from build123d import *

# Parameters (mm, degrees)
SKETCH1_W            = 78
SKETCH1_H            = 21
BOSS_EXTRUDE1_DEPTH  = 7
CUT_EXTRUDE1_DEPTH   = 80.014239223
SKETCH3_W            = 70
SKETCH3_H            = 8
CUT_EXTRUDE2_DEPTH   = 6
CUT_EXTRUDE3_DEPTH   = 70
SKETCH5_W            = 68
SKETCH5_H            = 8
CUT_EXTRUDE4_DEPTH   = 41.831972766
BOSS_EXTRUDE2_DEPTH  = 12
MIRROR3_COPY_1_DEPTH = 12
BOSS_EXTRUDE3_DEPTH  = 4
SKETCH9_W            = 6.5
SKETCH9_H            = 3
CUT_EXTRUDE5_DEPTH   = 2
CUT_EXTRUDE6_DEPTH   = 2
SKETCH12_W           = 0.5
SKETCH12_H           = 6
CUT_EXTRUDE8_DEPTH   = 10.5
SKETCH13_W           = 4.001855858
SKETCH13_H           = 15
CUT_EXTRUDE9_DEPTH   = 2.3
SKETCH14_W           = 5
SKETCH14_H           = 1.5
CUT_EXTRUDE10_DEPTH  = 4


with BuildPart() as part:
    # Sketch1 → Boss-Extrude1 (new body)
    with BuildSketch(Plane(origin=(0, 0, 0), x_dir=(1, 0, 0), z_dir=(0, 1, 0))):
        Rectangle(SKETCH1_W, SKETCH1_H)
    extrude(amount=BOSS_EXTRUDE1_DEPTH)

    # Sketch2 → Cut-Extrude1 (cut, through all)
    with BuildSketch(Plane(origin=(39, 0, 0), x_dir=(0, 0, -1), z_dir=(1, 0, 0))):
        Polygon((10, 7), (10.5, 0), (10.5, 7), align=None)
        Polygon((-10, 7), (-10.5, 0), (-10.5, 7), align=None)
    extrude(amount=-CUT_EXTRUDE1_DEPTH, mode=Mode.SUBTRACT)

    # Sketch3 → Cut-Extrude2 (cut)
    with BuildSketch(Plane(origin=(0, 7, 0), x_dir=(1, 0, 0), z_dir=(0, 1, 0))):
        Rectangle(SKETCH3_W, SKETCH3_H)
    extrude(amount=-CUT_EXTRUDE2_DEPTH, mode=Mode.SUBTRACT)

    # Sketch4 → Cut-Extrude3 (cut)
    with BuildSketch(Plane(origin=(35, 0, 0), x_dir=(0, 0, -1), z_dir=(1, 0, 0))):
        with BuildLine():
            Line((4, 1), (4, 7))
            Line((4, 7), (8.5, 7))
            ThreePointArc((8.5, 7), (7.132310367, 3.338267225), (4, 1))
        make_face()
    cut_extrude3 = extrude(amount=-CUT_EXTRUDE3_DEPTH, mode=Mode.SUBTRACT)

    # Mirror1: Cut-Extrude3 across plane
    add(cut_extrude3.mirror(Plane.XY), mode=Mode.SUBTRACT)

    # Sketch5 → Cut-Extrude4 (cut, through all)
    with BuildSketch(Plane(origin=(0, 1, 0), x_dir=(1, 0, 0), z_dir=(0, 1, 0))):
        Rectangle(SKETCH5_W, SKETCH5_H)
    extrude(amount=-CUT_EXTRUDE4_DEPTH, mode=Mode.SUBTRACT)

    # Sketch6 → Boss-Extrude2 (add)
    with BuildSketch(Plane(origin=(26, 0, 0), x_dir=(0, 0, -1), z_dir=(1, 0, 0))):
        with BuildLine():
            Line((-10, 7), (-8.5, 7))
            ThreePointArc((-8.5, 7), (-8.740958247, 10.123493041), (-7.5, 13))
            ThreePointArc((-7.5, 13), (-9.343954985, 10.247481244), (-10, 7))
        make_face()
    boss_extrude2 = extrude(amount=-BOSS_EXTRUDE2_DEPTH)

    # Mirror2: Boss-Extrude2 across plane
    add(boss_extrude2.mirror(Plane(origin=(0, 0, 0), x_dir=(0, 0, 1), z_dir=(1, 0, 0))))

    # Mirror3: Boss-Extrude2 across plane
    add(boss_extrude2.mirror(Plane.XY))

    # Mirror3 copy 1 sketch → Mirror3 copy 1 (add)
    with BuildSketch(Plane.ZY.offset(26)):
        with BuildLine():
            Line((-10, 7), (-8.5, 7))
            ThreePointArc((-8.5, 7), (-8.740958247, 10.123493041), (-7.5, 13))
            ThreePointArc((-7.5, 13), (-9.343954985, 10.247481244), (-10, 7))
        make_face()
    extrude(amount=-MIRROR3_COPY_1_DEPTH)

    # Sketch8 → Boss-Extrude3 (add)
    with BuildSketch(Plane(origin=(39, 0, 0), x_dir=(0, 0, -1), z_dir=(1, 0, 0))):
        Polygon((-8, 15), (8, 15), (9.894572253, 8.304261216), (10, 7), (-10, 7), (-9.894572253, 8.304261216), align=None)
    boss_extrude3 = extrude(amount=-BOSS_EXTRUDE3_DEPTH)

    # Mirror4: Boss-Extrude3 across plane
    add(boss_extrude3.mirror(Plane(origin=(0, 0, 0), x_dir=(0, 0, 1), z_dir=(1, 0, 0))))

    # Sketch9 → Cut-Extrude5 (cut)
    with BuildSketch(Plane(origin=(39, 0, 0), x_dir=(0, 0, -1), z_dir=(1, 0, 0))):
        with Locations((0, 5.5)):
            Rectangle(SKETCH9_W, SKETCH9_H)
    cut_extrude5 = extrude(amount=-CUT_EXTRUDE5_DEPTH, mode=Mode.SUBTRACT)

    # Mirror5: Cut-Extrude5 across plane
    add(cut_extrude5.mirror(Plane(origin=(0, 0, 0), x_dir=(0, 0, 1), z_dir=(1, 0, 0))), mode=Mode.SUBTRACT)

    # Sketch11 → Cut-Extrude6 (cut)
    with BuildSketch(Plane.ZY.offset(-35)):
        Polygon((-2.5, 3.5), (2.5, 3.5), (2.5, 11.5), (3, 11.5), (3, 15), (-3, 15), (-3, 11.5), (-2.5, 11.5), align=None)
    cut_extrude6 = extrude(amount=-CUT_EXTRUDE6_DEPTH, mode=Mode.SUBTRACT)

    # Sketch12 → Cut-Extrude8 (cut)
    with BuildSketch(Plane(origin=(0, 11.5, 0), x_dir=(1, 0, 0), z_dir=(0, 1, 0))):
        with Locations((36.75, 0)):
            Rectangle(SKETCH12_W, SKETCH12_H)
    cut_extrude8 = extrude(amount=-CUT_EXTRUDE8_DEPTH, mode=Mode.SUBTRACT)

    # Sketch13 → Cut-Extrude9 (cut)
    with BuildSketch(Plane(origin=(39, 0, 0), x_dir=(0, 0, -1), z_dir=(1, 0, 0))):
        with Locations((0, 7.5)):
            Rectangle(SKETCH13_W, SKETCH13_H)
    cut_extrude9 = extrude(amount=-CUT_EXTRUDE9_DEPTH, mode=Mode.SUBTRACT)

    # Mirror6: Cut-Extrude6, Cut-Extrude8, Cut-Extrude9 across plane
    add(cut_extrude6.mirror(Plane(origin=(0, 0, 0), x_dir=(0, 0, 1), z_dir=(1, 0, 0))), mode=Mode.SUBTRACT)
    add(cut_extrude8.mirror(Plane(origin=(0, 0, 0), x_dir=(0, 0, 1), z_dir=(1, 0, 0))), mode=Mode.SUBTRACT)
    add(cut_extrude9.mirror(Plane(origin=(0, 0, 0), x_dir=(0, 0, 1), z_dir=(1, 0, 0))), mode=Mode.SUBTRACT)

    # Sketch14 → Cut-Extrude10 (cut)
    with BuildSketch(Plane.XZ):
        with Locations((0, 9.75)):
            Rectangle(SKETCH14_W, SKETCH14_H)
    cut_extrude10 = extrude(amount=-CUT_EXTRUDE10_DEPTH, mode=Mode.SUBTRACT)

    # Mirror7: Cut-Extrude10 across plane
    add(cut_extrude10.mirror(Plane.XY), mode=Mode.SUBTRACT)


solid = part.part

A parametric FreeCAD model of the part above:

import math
import FreeCAD as App
import Part
import Sketcher
from FreeCAD import Vector
Q = App.Units.Quantity


def add_polygon(sketch, points):
    """Adds a closed chain of lines whose ends are joined by coincident constraints."""
    first, n = sketch.GeometryCount, len(points)
    for a, b in zip(points, points[1:] + points[:1]):
        sketch.addGeometry(Part.LineSegment(App.Vector(*a, 0), App.Vector(*b, 0)), False)
    for i in range(n):
        sketch.addConstraint(Sketcher.Constraint("Coincident", first + i, 2, first + (i + 1) % n, 1))

doc = App.newDocument("Part")
body = doc.addObject("PartDesign::Body", "Body")

# Sketch on XZ plane
sketch1 = body.newObject("Sketcher::SketchObject", "Sketch")
sketch1.AttachmentSupport = (doc.getObject("XZ_Plane"), [""])
sketch1.MapMode = "FlatFace"
add_polygon(sketch1, [(-39, -10), (-39, 10), (39, 10), (39, -10)])  # lines 0-3
sketch1.addConstraint(Sketcher.Constraint("Vertical", 0))
sketch1.addConstraint(Sketcher.Constraint("Horizontal", 1))
sketch1.addConstraint(Sketcher.Constraint("Vertical", 2))
sketch1.addConstraint(Sketcher.Constraint("Horizontal", 3))
sketch1.addConstraint(Sketcher.Constraint("Symmetric", 0, 2, 2, 2, -1, 1))
sketch1.addConstraint(Sketcher.Constraint("DistanceX", 1, 1, 1, 2, Q("78 mm")))
sketch1.addConstraint(Sketcher.Constraint("DistanceY", 0, 1, 0, 2, Q("21 mm")))
pad1 = body.newObject("PartDesign::Pad", "Pad")
pad1.Profile = sketch1
pad1.Length = 7
pad1.Reversed = True

# Sketch on YZ plane
sketch2 = body.newObject("Sketcher::SketchObject", "Sketch001")
sketch2.AttachmentSupport = (doc.getObject("YZ_Plane"), [""])
sketch2.MapMode = "FlatFace"
sketch2.AttachmentOffset = App.Placement(Vector(0, 0, 39), App.Rotation())
add_polygon(sketch2, [(7, -10), (0, -10.5), (7, -10.5)])  # lines 0-2
add_polygon(sketch2, [(0, 10.5), (7, 10), (7, 10.5)])  # lines 3-5
sketch2.addConstraint(Sketcher.Constraint("Horizontal", 1))
sketch2.addConstraint(Sketcher.Constraint("Vertical", 2))
sketch2.addConstraint(Sketcher.Constraint("Vertical", 4))
sketch2.addConstraint(Sketcher.Constraint("Horizontal", 5))
sketch2.addConstraint(Sketcher.Constraint("Symmetric", 0, 2, 5, 2, -1, 1))
sketch2.addConstraint(Sketcher.Constraint("Symmetric", 2, 2, 3, 2, -1))
sketch2.addConstraint(Sketcher.Constraint("PointOnObject", 0, 2, -2))
sketch2.addConstraint(Sketcher.Constraint("DistanceX", 1, 1, 1, 2, Q("7 mm")))
sketch2.addConstraint(Sketcher.Constraint("DistanceY", 2, 1, 2, 2, Q("0.5 mm")))
sketch2.addConstraint(Sketcher.Constraint("DistanceY", 2, 2, -1, 1, Q("10 mm")))
pocket1 = body.newObject("PartDesign::Pocket", "Pocket")
pocket1.Profile = sketch2
pocket1.Type = "ThroughAll"

# Sketch on XZ plane
sketch3 = body.newObject("Sketcher::SketchObject", "Sketch002")
sketch3.AttachmentSupport = (doc.getObject("XZ_Plane"), [""])
sketch3.MapMode = "FlatFace"
sketch3.AttachmentOffset = App.Placement(Vector(0, 0, -7), App.Rotation())
add_polygon(sketch3, [(-35, -4), (-35, 4), (35, 4), (35, -4)])  # lines 0-3
sketch3.addConstraint(Sketcher.Constraint("Vertical", 0))
sketch3.addConstraint(Sketcher.Constraint("Horizontal", 1))
sketch3.addConstraint(Sketcher.Constraint("Vertical", 2))
sketch3.addConstraint(Sketcher.Constraint("Horizontal", 3))
sketch3.addConstraint(Sketcher.Constraint("Symmetric", 0, 2, 2, 2, -1, 1))
sketch3.addConstraint(Sketcher.Constraint("DistanceX", 1, 1, 1, 2, Q("70 mm")))
sketch3.addConstraint(Sketcher.Constraint("DistanceY", 0, 1, 0, 2, Q("8 mm")))
pocket2 = body.newObject("PartDesign::Pocket", "Pocket001")
pocket2.Profile = sketch3
pocket2.Length = 6
pocket2.Reversed = True

# Sketch on YZ plane
sketch4 = body.newObject("Sketcher::SketchObject", "Sketch003")
sketch4.AttachmentSupport = (doc.getObject("YZ_Plane"), [""])
sketch4.MapMode = "FlatFace"
sketch4.AttachmentOffset = App.Placement(Vector(0, 0, 35), App.Rotation())
sketch4.addGeometry(Part.LineSegment(Vector(7, -4, 0), Vector(1, -4, 0)), False)
sketch4.addGeometry(Part.ArcOfCircle(Part.Circle(Vector(7.5, -1.6, 0), Vector(0, 0, 1), 6.9), math.radians(-160), math.radians(-94)), False)
sketch4.addGeometry(Part.LineSegment(Vector(7, -8.5, 0), Vector(7, -4, 0)), False)
sketch4.addConstraint(Sketcher.Constraint("Coincident", 0, 2, 1, 1))
sketch4.addConstraint(Sketcher.Constraint("Coincident", 1, 2, 2, 1))
sketch4.addConstraint(Sketcher.Constraint("Coincident", 2, 2, 0, 1))
sketch4.addConstraint(Sketcher.Constraint("Horizontal", 0))
sketch4.addConstraint(Sketcher.Constraint("Vertical", 2))
sketch4.addConstraint(Sketcher.Constraint("DistanceX", 0, 2, 0, 1, Q("6 mm")))
sketch4.addConstraint(Sketcher.Constraint("DistanceY", 2, 1, 2, 2, Q("4.5 mm")))
sketch4.addConstraint(Sketcher.Constraint("DistanceX", -1, 1, 0, 2, Q("1 mm")))
sketch4.addConstraint(Sketcher.Constraint("DistanceY", 0, 2, -1, 1, Q("4 mm")))
sketch4.addConstraint(Sketcher.Constraint("Radius", 1, Q("6.926752 mm")))
pocket3 = body.newObject("PartDesign::Pocket", "Pocket002")
pocket3.Profile = sketch4
pocket3.Length = 70
doc.recompute()

mirrored = body.newObject("PartDesign::Mirrored", "Mirrored")
mirrored.Originals = [pocket3]
mirrored.MirrorPlane = (doc.getObject("XY_Plane"), [""])
body.Tip = mirrored

# Sketch on XZ plane
sketch5 = body.newObject("Sketcher::SketchObject", "Sketch004")
sketch5.AttachmentSupport = (doc.getObject("XZ_Plane"), [""])
sketch5.MapMode = "FlatFace"
sketch5.AttachmentOffset = App.Placement(Vector(0, 0, -1), App.Rotation())
add_polygon(sketch5, [(-34, -4), (-34, 4), (34, 4), (34, -4)])  # lines 0-3
sketch5.addConstraint(Sketcher.Constraint("Vertical", 0))
sketch5.addConstraint(Sketcher.Constraint("Horizontal", 1))
sketch5.addConstraint(Sketcher.Constraint("Vertical", 2))
sketch5.addConstraint(Sketcher.Constraint("Horizontal", 3))
sketch5.addConstraint(Sketcher.Constraint("Symmetric", 0, 2, 2, 2, -1, 1))
sketch5.addConstraint(Sketcher.Constraint("DistanceX", 1, 1, 1, 2, Q("68 mm")))
sketch5.addConstraint(Sketcher.Constraint("DistanceY", 0, 1, 0, 2, Q("8 mm")))
pocket4 = body.newObject("PartDesign::Pocket", "Pocket003")
pocket4.Profile = sketch5
pocket4.Type = "ThroughAll"
pocket4.Reversed = True

# Sketch on YZ plane
sketch6 = body.newObject("Sketcher::SketchObject", "Sketch005")
sketch6.AttachmentSupport = (doc.getObject("YZ_Plane"), [""])
sketch6.MapMode = "FlatFace"
sketch6.AttachmentOffset = App.Placement(Vector(0, 0, 26), App.Rotation())
sketch6.addGeometry(Part.LineSegment(Vector(7, 10, 0), Vector(7, 8.5, 0)), False)
sketch6.addGeometry(Part.ArcOfCircle(Part.Circle(Vector(9, 2.3, 0), Vector(0, 0, 1), 6.5), math.radians(53), math.radians(108)), False)
sketch6.addGeometry(Part.ArcOfCircle(Part.Circle(Vector(7, 1.5, 0), Vector(0, 0, 1), 8.5), math.radians(45), math.radians(90)), False)
sketch6.addConstraint(Sketcher.Constraint("Coincident", 0, 2, 1, 2))
sketch6.addConstraint(Sketcher.Constraint("Coincident", 1, 1, 2, 1))
sketch6.addConstraint(Sketcher.Constraint("Coincident", 2, 2, 0, 1))
sketch6.addConstraint(Sketcher.Constraint("Vertical", 0))
sketch6.addConstraint(Sketcher.Constraint("DistanceY", 0, 2, 0, 1, Q("1.5 mm")))
sketch6.addConstraint(Sketcher.Constraint("DistanceX", -1, 1, 0, 2, Q("7 mm")))
sketch6.addConstraint(Sketcher.Constraint("DistanceX", -1, 1, 1, 1, Q("13 mm")))
sketch6.addConstraint(Sketcher.Constraint("DistanceY", -1, 1, 2, 2, Q("10 mm")))
sketch6.addConstraint(Sketcher.Constraint("DistanceY", 1, 1, 0, 2, Q("1 mm")))
sketch6.addConstraint(Sketcher.Constraint("Radius", 1, Q("6.532579 mm")))
sketch6.addConstraint(Sketcher.Constraint("Radius", 2, Q("8.529418 mm")))
pad2 = body.newObject("PartDesign::Pad", "Pad001")
pad2.Profile = sketch6
pad2.Length = 12
pad2.Reversed = True
doc.recompute()

mirrored2 = body.newObject("PartDesign::Mirrored", "Mirrored001")
mirrored2.Originals = [pad2]
mirrored2.MirrorPlane = (doc.getObject("YZ_Plane"), [""])
body.Tip = mirrored2
doc.recompute()

mirrored3 = body.newObject("PartDesign::Mirrored", "Mirrored002")
mirrored3.Originals = [pad2]
mirrored3.MirrorPlane = (doc.getObject("XY_Plane"), [""])
body.Tip = mirrored3

# Sketch on YZ plane
sketch7 = body.newObject("Sketcher::SketchObject", "Sketch006")
sketch7.AttachmentSupport = (doc.getObject("YZ_Plane"), [""])
sketch7.MapMode = "FlatFace"
sketch7.AttachmentOffset = App.Placement(Vector(0, 0, -26), App.Rotation())
sketch7.addGeometry(Part.LineSegment(Vector(7, -10, 0), Vector(7, -8.5, 0)), False)
sketch7.addGeometry(Part.ArcOfCircle(Part.Circle(Vector(9, -2.3, 0), Vector(0, 0, 1), 6.5), math.radians(-108), math.radians(-53)), False)
sketch7.addGeometry(Part.ArcOfCircle(Part.Circle(Vector(7, -1.5, 0), Vector(0, 0, 1), 8.5), math.radians(-90), math.radians(-45)), False)
sketch7.addConstraint(Sketcher.Constraint("Coincident", 0, 2, 1, 1))
sketch7.addConstraint(Sketcher.Constraint("Coincident", 1, 2, 2, 2))
sketch7.addConstraint(Sketcher.Constraint("Coincident", 2, 1, 0, 1))
sketch7.addConstraint(Sketcher.Constraint("Vertical", 0))
sketch7.addConstraint(Sketcher.Constraint("DistanceY", 0, 1, 0, 2, Q("1.5 mm")))
sketch7.addConstraint(Sketcher.Constraint("DistanceX", -1, 1, 0, 2, Q("7 mm")))
sketch7.addConstraint(Sketcher.Constraint("DistanceX", -1, 1, 1, 2, Q("13 mm")))
sketch7.addConstraint(Sketcher.Constraint("DistanceY", 2, 1, -1, 1, Q("10 mm")))
sketch7.addConstraint(Sketcher.Constraint("DistanceY", 0, 2, 1, 2, Q("1 mm")))
sketch7.addConstraint(Sketcher.Constraint("Radius", 1, Q("6.532579 mm")))
sketch7.addConstraint(Sketcher.Constraint("Radius", 2, Q("8.529418 mm")))
pad3 = body.newObject("PartDesign::Pad", "Pad002")
pad3.Profile = sketch7
pad3.Length = 12

# Sketch on YZ plane
sketch8 = body.newObject("Sketcher::SketchObject", "Sketch007")
sketch8.AttachmentSupport = (doc.getObject("YZ_Plane"), [""])
sketch8.MapMode = "FlatFace"
sketch8.AttachmentOffset = App.Placement(Vector(0, 0, 39), App.Rotation())
add_polygon(sketch8, [(15, -8), (15, 8), (8.3, 9.9), (7, 10), (7, -10), (8.3, -9.9)])  # lines 0-5
sketch8.addConstraint(Sketcher.Constraint("Vertical", 0))
sketch8.addConstraint(Sketcher.Constraint("Vertical", 3))
sketch8.addConstraint(Sketcher.Constraint("Symmetric", 1, 2, 4, 2, -1))
sketch8.addConstraint(Sketcher.Constraint("Equal", 2, 4))
sketch8.addConstraint(Sketcher.Constraint("Equal", 1, 5))
sketch8.addConstraint(Sketcher.Constraint("DistanceY", 0, 1, 0, 2, Q("16 mm")))
sketch8.addConstraint(Sketcher.Constraint("DistanceY", 3, 2, 3, 1, Q("20 mm")))
sketch8.addConstraint(Sketcher.Constraint("DistanceX", -1, 1, 0, 2, Q("15 mm")))
sketch8.addConstraint(Sketcher.Constraint("DistanceX", -1, 1, 2, 2, Q("7 mm")))
sketch8.addConstraint(Sketcher.Constraint("DistanceX", -1, 1, 1, 2, Q("8.304261 mm")))
sketch8.addConstraint(Sketcher.Constraint("Distance", 1, Q("6.958615 mm")))
pad4 = body.newObject("PartDesign::Pad", "Pad003")
pad4.Profile = sketch8
pad4.Length = 4
pad4.Reversed = True
doc.recompute()

mirrored4 = body.newObject("PartDesign::Mirrored", "Mirrored003")
mirrored4.Originals = [pad4]
mirrored4.MirrorPlane = (doc.getObject("YZ_Plane"), [""])
body.Tip = mirrored4

# Sketch on YZ plane
sketch9 = body.newObject("Sketcher::SketchObject", "Sketch008")
sketch9.AttachmentSupport = (doc.getObject("YZ_Plane"), [""])
sketch9.MapMode = "FlatFace"
sketch9.AttachmentOffset = App.Placement(Vector(0, 0, 39), App.Rotation())
add_polygon(sketch9, [(7, 3.2), (4, 3.2), (4, -3.2), (7, -3.2)])  # lines 0-3
sketch9.addConstraint(Sketcher.Constraint("Horizontal", 0))
sketch9.addConstraint(Sketcher.Constraint("Vertical", 1))
sketch9.addConstraint(Sketcher.Constraint("Horizontal", 2))
sketch9.addConstraint(Sketcher.Constraint("Vertical", 3))
sketch9.addConstraint(Sketcher.Constraint("DistanceX", 0, 2, 0, 1, Q("3 mm")))
sketch9.addConstraint(Sketcher.Constraint("DistanceY", 1, 2, 1, 1, Q("6.5 mm")))
sketch9.addConstraint(Sketcher.Constraint("DistanceX", -1, 1, 0, 2, Q("4 mm")))
sketch9.addConstraint(Sketcher.Constraint("DistanceY", -1, 1, 0, 2, Q("3.25 mm")))
pocket5 = body.newObject("PartDesign::Pocket", "Pocket004")
pocket5.Profile = sketch9
pocket5.Length = 2
doc.recompute()

mirrored5 = body.newObject("PartDesign::Mirrored", "Mirrored004")
mirrored5.Originals = [pocket5]
mirrored5.MirrorPlane = (doc.getObject("YZ_Plane"), [""])
body.Tip = mirrored5

# Sketch on YZ plane
sketch10 = body.newObject("Sketcher::SketchObject", "Sketch009")
sketch10.AttachmentSupport = (doc.getObject("YZ_Plane"), [""])
sketch10.MapMode = "FlatFace"
sketch10.AttachmentOffset = App.Placement(Vector(0, 0, 35), App.Rotation())
add_polygon(sketch10, [(3.5, -2.5), (3.5, 2.5), (11.5, 2.5), (11.5, 3), (15, 3), (15, -3), (11.5, -3), (11.5, -2.5)])  # lines 0-7
sketch10.addConstraint(Sketcher.Constraint("Vertical", 0))
sketch10.addConstraint(Sketcher.Constraint("Horizontal", 1))
sketch10.addConstraint(Sketcher.Constraint("Vertical", 2))
sketch10.addConstraint(Sketcher.Constraint("Horizontal", 3))
sketch10.addConstraint(Sketcher.Constraint("Vertical", 4))
sketch10.addConstraint(Sketcher.Constraint("Horizontal", 5))
sketch10.addConstraint(Sketcher.Constraint("Vertical", 6))
sketch10.addConstraint(Sketcher.Constraint("Horizontal", 7))
sketch10.addConstraint(Sketcher.Constraint("Symmetric", 2, 2, 5, 2, -1))
sketch10.addConstraint(Sketcher.Constraint("Equal", 2, 6))
sketch10.addConstraint(Sketcher.Constraint("DistanceX", 1, 1, 1, 2, Q("8 mm")))
sketch10.addConstraint(Sketcher.Constraint("DistanceY", 0, 1, 0, 2, Q("5 mm")))
sketch10.addConstraint(Sketcher.Constraint("DistanceY", 4, 2, 4, 1, Q("6 mm")))
sketch10.addConstraint(Sketcher.Constraint("DistanceX", 3, 1, 3, 2, Q("3.5 mm")))
sketch10.addConstraint(Sketcher.Constraint("DistanceX", -1, 1, 3, 2, Q("15 mm")))
pocket6 = body.newObject("PartDesign::Pocket", "Pocket005")
pocket6.Profile = sketch10
pocket6.Length = 2
pocket6.Reversed = True

# Sketch on XZ plane
sketch11 = body.newObject("Sketcher::SketchObject", "Sketch010")
sketch11.AttachmentSupport = (doc.getObject("XZ_Plane"), [""])
sketch11.MapMode = "FlatFace"
sketch11.AttachmentOffset = App.Placement(Vector(0, 0, -11.5), App.Rotation())
add_polygon(sketch11, [(36.5, -3), (36.5, 3), (37, 3), (37, -3)])  # lines 0-3
sketch11.addConstraint(Sketcher.Constraint("Vertical", 0))
sketch11.addConstraint(Sketcher.Constraint("Horizontal", 1))
sketch11.addConstraint(Sketcher.Constraint("Vertical", 2))
sketch11.addConstraint(Sketcher.Constraint("Horizontal", 3))
sketch11.addConstraint(Sketcher.Constraint("DistanceY", 0, 1, 0, 2, Q("6 mm")))
sketch11.addConstraint(Sketcher.Constraint("DistanceX", 1, 1, 1, 2, Q("0.5 mm")))
sketch11.addConstraint(Sketcher.Constraint("DistanceY", -1, 1, 0, 2, Q("3 mm")))
sketch11.addConstraint(Sketcher.Constraint("DistanceX", -1, 1, 1, 2, Q("37 mm")))
pocket7 = body.newObject("PartDesign::Pocket", "Pocket006")
pocket7.Profile = sketch11
pocket7.Length = 10.5
pocket7.Reversed = True

# Sketch on YZ plane
sketch12 = body.newObject("Sketcher::SketchObject", "Sketch011")
sketch12.AttachmentSupport = (doc.getObject("YZ_Plane"), [""])
sketch12.MapMode = "FlatFace"
sketch12.AttachmentOffset = App.Placement(Vector(0, 0, 39), App.Rotation())
add_polygon(sketch12, [(15, 2), (0, 2), (0, -2), (15, -2)])  # lines 0-3
sketch12.addConstraint(Sketcher.Constraint("Horizontal", 0))
sketch12.addConstraint(Sketcher.Constraint("Vertical", 1))
sketch12.addConstraint(Sketcher.Constraint("Horizontal", 2))
sketch12.addConstraint(Sketcher.Constraint("Vertical", 3))
sketch12.addConstraint(Sketcher.Constraint("Symmetric", 0, 2, 1, 2, -1, 1))
sketch12.addConstraint(Sketcher.Constraint("DistanceX", 0, 2, 0, 1, Q("15 mm")))
sketch12.addConstraint(Sketcher.Constraint("DistanceY", 1, 2, 1, 1, Q("4.001856 mm")))
pocket8 = body.newObject("PartDesign::Pocket", "Pocket007")
pocket8.Profile = sketch12
pocket8.Length = 2.3
doc.recompute()

mirrored6 = body.newObject("PartDesign::Mirrored", "Mirrored005")
mirrored6.Originals = [pocket6, pocket7, pocket8]
mirrored6.MirrorPlane = (doc.getObject("YZ_Plane"), [""])
body.Tip = mirrored6

# Sketch on XZ plane
sketch13 = body.newObject("Sketcher::SketchObject", "Sketch012")
sketch13.AttachmentSupport = (doc.getObject("XZ_Plane"), [""])
sketch13.MapMode = "FlatFace"
add_polygon(sketch13, [(-2.5, 10.5), (-2.5, 9), (2.5, 9), (2.5, 10.5)])  # lines 0-3
sketch13.addConstraint(Sketcher.Constraint("Vertical", 0))
sketch13.addConstraint(Sketcher.Constraint("Horizontal", 1))
sketch13.addConstraint(Sketcher.Constraint("Vertical", 2))
sketch13.addConstraint(Sketcher.Constraint("Horizontal", 3))
sketch13.addConstraint(Sketcher.Constraint("DistanceX", 1, 1, 1, 2, Q("5 mm")))
sketch13.addConstraint(Sketcher.Constraint("DistanceY", 0, 2, 0, 1, Q("1.5 mm")))
sketch13.addConstraint(Sketcher.Constraint("DistanceY", -1, 1, 0, 2, Q("9 mm")))
sketch13.addConstraint(Sketcher.Constraint("DistanceX", 0, 2, -1, 1, Q("2.5 mm")))
pocket9 = body.newObject("PartDesign::Pocket", "Pocket008")
pocket9.Profile = sketch13
pocket9.Length = 4
doc.recompute()

mirrored7 = body.newObject("PartDesign::Mirrored", "Mirrored006")
mirrored7.Originals = [pocket9]
mirrored7.MirrorPlane = (doc.getObject("XY_Plane"), [""])
body.Tip = mirrored7

doc.recompute()
